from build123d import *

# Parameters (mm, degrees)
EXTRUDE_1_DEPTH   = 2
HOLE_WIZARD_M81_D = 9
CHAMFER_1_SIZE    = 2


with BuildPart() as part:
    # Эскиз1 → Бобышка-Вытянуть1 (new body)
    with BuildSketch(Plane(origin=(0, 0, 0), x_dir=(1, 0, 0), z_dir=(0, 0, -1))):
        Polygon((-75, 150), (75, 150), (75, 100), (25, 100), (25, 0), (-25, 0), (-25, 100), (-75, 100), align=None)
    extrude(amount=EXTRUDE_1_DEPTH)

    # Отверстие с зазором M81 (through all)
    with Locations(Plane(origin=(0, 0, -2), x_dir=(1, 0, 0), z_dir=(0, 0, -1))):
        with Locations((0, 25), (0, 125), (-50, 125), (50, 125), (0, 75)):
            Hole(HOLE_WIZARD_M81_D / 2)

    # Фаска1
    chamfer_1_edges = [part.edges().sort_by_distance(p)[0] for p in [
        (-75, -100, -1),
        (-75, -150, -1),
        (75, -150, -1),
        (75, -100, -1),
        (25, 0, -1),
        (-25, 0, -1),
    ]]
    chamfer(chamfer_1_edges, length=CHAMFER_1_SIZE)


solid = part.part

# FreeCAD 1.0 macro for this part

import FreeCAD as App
import Part
import Sketcher
from FreeCAD import Vector
Q = App.Units.Quantity


def edges_at(feature, points):
    """Names of the edges that pass closest to the given points."""
    edges = feature.Shape.Edges
    near = lambda p: min(range(len(edges)), key=lambda i: edges[i].distToShape(Part.Vertex(*p))[0])
    return sorted({f"Edge{near(p) + 1}" for p in points})


def add_polygon(sketch, points):
    """Adds a closed chain of lines whose ends are joined by coincident constraints."""
    first, n = sketch.GeometryCount, len(points)
    for a, b in zip(points, points[1:] + points[:1]):
        sketch.addGeometry(Part.LineSegment(App.Vector(*a, 0), App.Vector(*b, 0)), False)
    for i in range(n):
        sketch.addConstraint(Sketcher.Constraint("Coincident", first + i, 2, first + (i + 1) % n, 1))

doc = App.newDocument("Part")
body = doc.addObject("PartDesign::Body", "Body")

sketch1 = doc.addObject("Sketcher::SketchObject", "Sketch")
body.addObject(sketch1)
sketch1.AttachmentSupport = (doc.XY_Plane, [""])
sketch1.MapMode = "FlatFace"
add_polygon(sketch1, [(75, -150), (-75, -150), (-75, -100), (-25, -100), (-25, 0), (25, 0), (25, -100), (75, -100)])
sketch1.addConstraint(Sketcher.Constraint("Horizontal", 0))
sketch1.addConstraint(Sketcher.Constraint("Vertical", 1))
sketch1.addConstraint(Sketcher.Constraint("Horizontal", 2))
sketch1.addConstraint(Sketcher.Constraint("Vertical", 3))
sketch1.addConstraint(Sketcher.Constraint("Horizontal", 4))
sketch1.addConstraint(Sketcher.Constraint("Vertical", 5))
sketch1.addConstraint(Sketcher.Constraint("Horizontal", 6))
sketch1.addConstraint(Sketcher.Constraint("Vertical", 7))
sketch1.addConstraint(Sketcher.Constraint("Symmetric", 3, 2, 4, 2, -1, 1))
sketch1.addConstraint(Sketcher.Constraint("Symmetric", 1, 2, 6, 2, -2))
sketch1.addConstraint(Sketcher.Constraint("Equal", 2, 4))
sketch1.addConstraint(Sketcher.Constraint("Equal", 6, 1))
sketch1.addConstraint(Sketcher.Constraint("DistanceX", 0, 2, 0, 1, Q("150 mm")))
sketch1.addConstraint(Sketcher.Constraint("DistanceY", 3, 1, 3, 2, Q("100 mm")))
pad1 = doc.addObject("PartDesign::Pad", "Pad")
body.addObject(pad1)
pad1.Profile = sketch1
pad1.Length = 2
pad1.Reversed = True

sketch2 = doc.addObject("Sketcher::SketchObject", "Sketch001")
body.addObject(sketch2)
sketch2.AttachmentSupport = (doc.XY_Plane, [""])
sketch2.MapMode = "FlatFace"
sketch2.AttachmentOffset = App.Placement(Vector(0, 0, -2), App.Rotation())
sketch2.addGeometry(Part.Circle(Vector(0, -25, 0), Vector(0, 0, 1), 4.5), False)
sketch2.addGeometry(Part.Circle(Vector(0, -125, 0), Vector(0, 0, 1), 4.5), False)
sketch2.addGeometry(Part.Circle(Vector(-50, -125, 0), Vector(0, 0, 1), 4.5), False)
sketch2.addGeometry(Part.Circle(Vector(50, -125, 0), Vector(0, 0, 1), 4.5), False)
sketch2.addGeometry(Part.Circle(Vector(0, -75, 0), Vector(0, 0, 1), 4.5), False)
sketch2.addConstraint(Sketcher.Constraint("Equal", 0, 1))
sketch2.addConstraint(Sketcher.Constraint("Equal", 1, 2))
sketch2.addConstraint(Sketcher.Constraint("Equal", 2, 3))
sketch2.addConstraint(Sketcher.Constraint("Equal", 3, 4))
sketch2.addConstraint(Sketcher.Constraint("Symmetric", 2, 3, 3, 3, -2))
sketch2.addConstraint(Sketcher.Constraint("PointOnObject", 0, 3, -2))
sketch2.addConstraint(Sketcher.Constraint("PointOnObject", 1, 3, -2))
sketch2.addConstraint(Sketcher.Constraint("PointOnObject", 4, 3, -2))
sketch2.addConstraint(Sketcher.Constraint("Horizontal", 1, 3, 2, 3))
sketch2.addConstraint(Sketcher.Constraint("Diameter", 0, Q("9 mm")))
sketch2.addConstraint(Sketcher.Constraint("DistanceY", 0, 3, -1, 1, Q("25 mm")))
sketch2.addConstraint(Sketcher.Constraint("DistanceY", 1, 3, -1, 1, Q("125 mm")))
sketch2.addConstraint(Sketcher.Constraint("DistanceX", 2, 3, -1, 1, Q("50 mm")))
sketch2.addConstraint(Sketcher.Constraint("DistanceY", 4, 3, -1, 1, Q("75 mm")))
doc.recompute()
hole = doc.addObject("PartDesign::Hole", "Hole")
body.addObject(hole)
hole.Profile = sketch2
hole.ThreadType = "None"
hole.Diameter = 9
hole.DepthType = "ThroughAll"
hole.Reversed = True
doc.recompute()

chamfer = doc.addObject("PartDesign::Chamfer", "Chamfer")
body.addObject(chamfer)
chamfer.Base = (hole, edges_at(hole, [
    (-75, -100, -1),
    (-75, -150, -1),
    (75, -150, -1),
    (75, -100, -1),
    (25, 0, -1),
    (-25, 0, -1),
]))
chamfer.Size = 2

doc.recompute()
